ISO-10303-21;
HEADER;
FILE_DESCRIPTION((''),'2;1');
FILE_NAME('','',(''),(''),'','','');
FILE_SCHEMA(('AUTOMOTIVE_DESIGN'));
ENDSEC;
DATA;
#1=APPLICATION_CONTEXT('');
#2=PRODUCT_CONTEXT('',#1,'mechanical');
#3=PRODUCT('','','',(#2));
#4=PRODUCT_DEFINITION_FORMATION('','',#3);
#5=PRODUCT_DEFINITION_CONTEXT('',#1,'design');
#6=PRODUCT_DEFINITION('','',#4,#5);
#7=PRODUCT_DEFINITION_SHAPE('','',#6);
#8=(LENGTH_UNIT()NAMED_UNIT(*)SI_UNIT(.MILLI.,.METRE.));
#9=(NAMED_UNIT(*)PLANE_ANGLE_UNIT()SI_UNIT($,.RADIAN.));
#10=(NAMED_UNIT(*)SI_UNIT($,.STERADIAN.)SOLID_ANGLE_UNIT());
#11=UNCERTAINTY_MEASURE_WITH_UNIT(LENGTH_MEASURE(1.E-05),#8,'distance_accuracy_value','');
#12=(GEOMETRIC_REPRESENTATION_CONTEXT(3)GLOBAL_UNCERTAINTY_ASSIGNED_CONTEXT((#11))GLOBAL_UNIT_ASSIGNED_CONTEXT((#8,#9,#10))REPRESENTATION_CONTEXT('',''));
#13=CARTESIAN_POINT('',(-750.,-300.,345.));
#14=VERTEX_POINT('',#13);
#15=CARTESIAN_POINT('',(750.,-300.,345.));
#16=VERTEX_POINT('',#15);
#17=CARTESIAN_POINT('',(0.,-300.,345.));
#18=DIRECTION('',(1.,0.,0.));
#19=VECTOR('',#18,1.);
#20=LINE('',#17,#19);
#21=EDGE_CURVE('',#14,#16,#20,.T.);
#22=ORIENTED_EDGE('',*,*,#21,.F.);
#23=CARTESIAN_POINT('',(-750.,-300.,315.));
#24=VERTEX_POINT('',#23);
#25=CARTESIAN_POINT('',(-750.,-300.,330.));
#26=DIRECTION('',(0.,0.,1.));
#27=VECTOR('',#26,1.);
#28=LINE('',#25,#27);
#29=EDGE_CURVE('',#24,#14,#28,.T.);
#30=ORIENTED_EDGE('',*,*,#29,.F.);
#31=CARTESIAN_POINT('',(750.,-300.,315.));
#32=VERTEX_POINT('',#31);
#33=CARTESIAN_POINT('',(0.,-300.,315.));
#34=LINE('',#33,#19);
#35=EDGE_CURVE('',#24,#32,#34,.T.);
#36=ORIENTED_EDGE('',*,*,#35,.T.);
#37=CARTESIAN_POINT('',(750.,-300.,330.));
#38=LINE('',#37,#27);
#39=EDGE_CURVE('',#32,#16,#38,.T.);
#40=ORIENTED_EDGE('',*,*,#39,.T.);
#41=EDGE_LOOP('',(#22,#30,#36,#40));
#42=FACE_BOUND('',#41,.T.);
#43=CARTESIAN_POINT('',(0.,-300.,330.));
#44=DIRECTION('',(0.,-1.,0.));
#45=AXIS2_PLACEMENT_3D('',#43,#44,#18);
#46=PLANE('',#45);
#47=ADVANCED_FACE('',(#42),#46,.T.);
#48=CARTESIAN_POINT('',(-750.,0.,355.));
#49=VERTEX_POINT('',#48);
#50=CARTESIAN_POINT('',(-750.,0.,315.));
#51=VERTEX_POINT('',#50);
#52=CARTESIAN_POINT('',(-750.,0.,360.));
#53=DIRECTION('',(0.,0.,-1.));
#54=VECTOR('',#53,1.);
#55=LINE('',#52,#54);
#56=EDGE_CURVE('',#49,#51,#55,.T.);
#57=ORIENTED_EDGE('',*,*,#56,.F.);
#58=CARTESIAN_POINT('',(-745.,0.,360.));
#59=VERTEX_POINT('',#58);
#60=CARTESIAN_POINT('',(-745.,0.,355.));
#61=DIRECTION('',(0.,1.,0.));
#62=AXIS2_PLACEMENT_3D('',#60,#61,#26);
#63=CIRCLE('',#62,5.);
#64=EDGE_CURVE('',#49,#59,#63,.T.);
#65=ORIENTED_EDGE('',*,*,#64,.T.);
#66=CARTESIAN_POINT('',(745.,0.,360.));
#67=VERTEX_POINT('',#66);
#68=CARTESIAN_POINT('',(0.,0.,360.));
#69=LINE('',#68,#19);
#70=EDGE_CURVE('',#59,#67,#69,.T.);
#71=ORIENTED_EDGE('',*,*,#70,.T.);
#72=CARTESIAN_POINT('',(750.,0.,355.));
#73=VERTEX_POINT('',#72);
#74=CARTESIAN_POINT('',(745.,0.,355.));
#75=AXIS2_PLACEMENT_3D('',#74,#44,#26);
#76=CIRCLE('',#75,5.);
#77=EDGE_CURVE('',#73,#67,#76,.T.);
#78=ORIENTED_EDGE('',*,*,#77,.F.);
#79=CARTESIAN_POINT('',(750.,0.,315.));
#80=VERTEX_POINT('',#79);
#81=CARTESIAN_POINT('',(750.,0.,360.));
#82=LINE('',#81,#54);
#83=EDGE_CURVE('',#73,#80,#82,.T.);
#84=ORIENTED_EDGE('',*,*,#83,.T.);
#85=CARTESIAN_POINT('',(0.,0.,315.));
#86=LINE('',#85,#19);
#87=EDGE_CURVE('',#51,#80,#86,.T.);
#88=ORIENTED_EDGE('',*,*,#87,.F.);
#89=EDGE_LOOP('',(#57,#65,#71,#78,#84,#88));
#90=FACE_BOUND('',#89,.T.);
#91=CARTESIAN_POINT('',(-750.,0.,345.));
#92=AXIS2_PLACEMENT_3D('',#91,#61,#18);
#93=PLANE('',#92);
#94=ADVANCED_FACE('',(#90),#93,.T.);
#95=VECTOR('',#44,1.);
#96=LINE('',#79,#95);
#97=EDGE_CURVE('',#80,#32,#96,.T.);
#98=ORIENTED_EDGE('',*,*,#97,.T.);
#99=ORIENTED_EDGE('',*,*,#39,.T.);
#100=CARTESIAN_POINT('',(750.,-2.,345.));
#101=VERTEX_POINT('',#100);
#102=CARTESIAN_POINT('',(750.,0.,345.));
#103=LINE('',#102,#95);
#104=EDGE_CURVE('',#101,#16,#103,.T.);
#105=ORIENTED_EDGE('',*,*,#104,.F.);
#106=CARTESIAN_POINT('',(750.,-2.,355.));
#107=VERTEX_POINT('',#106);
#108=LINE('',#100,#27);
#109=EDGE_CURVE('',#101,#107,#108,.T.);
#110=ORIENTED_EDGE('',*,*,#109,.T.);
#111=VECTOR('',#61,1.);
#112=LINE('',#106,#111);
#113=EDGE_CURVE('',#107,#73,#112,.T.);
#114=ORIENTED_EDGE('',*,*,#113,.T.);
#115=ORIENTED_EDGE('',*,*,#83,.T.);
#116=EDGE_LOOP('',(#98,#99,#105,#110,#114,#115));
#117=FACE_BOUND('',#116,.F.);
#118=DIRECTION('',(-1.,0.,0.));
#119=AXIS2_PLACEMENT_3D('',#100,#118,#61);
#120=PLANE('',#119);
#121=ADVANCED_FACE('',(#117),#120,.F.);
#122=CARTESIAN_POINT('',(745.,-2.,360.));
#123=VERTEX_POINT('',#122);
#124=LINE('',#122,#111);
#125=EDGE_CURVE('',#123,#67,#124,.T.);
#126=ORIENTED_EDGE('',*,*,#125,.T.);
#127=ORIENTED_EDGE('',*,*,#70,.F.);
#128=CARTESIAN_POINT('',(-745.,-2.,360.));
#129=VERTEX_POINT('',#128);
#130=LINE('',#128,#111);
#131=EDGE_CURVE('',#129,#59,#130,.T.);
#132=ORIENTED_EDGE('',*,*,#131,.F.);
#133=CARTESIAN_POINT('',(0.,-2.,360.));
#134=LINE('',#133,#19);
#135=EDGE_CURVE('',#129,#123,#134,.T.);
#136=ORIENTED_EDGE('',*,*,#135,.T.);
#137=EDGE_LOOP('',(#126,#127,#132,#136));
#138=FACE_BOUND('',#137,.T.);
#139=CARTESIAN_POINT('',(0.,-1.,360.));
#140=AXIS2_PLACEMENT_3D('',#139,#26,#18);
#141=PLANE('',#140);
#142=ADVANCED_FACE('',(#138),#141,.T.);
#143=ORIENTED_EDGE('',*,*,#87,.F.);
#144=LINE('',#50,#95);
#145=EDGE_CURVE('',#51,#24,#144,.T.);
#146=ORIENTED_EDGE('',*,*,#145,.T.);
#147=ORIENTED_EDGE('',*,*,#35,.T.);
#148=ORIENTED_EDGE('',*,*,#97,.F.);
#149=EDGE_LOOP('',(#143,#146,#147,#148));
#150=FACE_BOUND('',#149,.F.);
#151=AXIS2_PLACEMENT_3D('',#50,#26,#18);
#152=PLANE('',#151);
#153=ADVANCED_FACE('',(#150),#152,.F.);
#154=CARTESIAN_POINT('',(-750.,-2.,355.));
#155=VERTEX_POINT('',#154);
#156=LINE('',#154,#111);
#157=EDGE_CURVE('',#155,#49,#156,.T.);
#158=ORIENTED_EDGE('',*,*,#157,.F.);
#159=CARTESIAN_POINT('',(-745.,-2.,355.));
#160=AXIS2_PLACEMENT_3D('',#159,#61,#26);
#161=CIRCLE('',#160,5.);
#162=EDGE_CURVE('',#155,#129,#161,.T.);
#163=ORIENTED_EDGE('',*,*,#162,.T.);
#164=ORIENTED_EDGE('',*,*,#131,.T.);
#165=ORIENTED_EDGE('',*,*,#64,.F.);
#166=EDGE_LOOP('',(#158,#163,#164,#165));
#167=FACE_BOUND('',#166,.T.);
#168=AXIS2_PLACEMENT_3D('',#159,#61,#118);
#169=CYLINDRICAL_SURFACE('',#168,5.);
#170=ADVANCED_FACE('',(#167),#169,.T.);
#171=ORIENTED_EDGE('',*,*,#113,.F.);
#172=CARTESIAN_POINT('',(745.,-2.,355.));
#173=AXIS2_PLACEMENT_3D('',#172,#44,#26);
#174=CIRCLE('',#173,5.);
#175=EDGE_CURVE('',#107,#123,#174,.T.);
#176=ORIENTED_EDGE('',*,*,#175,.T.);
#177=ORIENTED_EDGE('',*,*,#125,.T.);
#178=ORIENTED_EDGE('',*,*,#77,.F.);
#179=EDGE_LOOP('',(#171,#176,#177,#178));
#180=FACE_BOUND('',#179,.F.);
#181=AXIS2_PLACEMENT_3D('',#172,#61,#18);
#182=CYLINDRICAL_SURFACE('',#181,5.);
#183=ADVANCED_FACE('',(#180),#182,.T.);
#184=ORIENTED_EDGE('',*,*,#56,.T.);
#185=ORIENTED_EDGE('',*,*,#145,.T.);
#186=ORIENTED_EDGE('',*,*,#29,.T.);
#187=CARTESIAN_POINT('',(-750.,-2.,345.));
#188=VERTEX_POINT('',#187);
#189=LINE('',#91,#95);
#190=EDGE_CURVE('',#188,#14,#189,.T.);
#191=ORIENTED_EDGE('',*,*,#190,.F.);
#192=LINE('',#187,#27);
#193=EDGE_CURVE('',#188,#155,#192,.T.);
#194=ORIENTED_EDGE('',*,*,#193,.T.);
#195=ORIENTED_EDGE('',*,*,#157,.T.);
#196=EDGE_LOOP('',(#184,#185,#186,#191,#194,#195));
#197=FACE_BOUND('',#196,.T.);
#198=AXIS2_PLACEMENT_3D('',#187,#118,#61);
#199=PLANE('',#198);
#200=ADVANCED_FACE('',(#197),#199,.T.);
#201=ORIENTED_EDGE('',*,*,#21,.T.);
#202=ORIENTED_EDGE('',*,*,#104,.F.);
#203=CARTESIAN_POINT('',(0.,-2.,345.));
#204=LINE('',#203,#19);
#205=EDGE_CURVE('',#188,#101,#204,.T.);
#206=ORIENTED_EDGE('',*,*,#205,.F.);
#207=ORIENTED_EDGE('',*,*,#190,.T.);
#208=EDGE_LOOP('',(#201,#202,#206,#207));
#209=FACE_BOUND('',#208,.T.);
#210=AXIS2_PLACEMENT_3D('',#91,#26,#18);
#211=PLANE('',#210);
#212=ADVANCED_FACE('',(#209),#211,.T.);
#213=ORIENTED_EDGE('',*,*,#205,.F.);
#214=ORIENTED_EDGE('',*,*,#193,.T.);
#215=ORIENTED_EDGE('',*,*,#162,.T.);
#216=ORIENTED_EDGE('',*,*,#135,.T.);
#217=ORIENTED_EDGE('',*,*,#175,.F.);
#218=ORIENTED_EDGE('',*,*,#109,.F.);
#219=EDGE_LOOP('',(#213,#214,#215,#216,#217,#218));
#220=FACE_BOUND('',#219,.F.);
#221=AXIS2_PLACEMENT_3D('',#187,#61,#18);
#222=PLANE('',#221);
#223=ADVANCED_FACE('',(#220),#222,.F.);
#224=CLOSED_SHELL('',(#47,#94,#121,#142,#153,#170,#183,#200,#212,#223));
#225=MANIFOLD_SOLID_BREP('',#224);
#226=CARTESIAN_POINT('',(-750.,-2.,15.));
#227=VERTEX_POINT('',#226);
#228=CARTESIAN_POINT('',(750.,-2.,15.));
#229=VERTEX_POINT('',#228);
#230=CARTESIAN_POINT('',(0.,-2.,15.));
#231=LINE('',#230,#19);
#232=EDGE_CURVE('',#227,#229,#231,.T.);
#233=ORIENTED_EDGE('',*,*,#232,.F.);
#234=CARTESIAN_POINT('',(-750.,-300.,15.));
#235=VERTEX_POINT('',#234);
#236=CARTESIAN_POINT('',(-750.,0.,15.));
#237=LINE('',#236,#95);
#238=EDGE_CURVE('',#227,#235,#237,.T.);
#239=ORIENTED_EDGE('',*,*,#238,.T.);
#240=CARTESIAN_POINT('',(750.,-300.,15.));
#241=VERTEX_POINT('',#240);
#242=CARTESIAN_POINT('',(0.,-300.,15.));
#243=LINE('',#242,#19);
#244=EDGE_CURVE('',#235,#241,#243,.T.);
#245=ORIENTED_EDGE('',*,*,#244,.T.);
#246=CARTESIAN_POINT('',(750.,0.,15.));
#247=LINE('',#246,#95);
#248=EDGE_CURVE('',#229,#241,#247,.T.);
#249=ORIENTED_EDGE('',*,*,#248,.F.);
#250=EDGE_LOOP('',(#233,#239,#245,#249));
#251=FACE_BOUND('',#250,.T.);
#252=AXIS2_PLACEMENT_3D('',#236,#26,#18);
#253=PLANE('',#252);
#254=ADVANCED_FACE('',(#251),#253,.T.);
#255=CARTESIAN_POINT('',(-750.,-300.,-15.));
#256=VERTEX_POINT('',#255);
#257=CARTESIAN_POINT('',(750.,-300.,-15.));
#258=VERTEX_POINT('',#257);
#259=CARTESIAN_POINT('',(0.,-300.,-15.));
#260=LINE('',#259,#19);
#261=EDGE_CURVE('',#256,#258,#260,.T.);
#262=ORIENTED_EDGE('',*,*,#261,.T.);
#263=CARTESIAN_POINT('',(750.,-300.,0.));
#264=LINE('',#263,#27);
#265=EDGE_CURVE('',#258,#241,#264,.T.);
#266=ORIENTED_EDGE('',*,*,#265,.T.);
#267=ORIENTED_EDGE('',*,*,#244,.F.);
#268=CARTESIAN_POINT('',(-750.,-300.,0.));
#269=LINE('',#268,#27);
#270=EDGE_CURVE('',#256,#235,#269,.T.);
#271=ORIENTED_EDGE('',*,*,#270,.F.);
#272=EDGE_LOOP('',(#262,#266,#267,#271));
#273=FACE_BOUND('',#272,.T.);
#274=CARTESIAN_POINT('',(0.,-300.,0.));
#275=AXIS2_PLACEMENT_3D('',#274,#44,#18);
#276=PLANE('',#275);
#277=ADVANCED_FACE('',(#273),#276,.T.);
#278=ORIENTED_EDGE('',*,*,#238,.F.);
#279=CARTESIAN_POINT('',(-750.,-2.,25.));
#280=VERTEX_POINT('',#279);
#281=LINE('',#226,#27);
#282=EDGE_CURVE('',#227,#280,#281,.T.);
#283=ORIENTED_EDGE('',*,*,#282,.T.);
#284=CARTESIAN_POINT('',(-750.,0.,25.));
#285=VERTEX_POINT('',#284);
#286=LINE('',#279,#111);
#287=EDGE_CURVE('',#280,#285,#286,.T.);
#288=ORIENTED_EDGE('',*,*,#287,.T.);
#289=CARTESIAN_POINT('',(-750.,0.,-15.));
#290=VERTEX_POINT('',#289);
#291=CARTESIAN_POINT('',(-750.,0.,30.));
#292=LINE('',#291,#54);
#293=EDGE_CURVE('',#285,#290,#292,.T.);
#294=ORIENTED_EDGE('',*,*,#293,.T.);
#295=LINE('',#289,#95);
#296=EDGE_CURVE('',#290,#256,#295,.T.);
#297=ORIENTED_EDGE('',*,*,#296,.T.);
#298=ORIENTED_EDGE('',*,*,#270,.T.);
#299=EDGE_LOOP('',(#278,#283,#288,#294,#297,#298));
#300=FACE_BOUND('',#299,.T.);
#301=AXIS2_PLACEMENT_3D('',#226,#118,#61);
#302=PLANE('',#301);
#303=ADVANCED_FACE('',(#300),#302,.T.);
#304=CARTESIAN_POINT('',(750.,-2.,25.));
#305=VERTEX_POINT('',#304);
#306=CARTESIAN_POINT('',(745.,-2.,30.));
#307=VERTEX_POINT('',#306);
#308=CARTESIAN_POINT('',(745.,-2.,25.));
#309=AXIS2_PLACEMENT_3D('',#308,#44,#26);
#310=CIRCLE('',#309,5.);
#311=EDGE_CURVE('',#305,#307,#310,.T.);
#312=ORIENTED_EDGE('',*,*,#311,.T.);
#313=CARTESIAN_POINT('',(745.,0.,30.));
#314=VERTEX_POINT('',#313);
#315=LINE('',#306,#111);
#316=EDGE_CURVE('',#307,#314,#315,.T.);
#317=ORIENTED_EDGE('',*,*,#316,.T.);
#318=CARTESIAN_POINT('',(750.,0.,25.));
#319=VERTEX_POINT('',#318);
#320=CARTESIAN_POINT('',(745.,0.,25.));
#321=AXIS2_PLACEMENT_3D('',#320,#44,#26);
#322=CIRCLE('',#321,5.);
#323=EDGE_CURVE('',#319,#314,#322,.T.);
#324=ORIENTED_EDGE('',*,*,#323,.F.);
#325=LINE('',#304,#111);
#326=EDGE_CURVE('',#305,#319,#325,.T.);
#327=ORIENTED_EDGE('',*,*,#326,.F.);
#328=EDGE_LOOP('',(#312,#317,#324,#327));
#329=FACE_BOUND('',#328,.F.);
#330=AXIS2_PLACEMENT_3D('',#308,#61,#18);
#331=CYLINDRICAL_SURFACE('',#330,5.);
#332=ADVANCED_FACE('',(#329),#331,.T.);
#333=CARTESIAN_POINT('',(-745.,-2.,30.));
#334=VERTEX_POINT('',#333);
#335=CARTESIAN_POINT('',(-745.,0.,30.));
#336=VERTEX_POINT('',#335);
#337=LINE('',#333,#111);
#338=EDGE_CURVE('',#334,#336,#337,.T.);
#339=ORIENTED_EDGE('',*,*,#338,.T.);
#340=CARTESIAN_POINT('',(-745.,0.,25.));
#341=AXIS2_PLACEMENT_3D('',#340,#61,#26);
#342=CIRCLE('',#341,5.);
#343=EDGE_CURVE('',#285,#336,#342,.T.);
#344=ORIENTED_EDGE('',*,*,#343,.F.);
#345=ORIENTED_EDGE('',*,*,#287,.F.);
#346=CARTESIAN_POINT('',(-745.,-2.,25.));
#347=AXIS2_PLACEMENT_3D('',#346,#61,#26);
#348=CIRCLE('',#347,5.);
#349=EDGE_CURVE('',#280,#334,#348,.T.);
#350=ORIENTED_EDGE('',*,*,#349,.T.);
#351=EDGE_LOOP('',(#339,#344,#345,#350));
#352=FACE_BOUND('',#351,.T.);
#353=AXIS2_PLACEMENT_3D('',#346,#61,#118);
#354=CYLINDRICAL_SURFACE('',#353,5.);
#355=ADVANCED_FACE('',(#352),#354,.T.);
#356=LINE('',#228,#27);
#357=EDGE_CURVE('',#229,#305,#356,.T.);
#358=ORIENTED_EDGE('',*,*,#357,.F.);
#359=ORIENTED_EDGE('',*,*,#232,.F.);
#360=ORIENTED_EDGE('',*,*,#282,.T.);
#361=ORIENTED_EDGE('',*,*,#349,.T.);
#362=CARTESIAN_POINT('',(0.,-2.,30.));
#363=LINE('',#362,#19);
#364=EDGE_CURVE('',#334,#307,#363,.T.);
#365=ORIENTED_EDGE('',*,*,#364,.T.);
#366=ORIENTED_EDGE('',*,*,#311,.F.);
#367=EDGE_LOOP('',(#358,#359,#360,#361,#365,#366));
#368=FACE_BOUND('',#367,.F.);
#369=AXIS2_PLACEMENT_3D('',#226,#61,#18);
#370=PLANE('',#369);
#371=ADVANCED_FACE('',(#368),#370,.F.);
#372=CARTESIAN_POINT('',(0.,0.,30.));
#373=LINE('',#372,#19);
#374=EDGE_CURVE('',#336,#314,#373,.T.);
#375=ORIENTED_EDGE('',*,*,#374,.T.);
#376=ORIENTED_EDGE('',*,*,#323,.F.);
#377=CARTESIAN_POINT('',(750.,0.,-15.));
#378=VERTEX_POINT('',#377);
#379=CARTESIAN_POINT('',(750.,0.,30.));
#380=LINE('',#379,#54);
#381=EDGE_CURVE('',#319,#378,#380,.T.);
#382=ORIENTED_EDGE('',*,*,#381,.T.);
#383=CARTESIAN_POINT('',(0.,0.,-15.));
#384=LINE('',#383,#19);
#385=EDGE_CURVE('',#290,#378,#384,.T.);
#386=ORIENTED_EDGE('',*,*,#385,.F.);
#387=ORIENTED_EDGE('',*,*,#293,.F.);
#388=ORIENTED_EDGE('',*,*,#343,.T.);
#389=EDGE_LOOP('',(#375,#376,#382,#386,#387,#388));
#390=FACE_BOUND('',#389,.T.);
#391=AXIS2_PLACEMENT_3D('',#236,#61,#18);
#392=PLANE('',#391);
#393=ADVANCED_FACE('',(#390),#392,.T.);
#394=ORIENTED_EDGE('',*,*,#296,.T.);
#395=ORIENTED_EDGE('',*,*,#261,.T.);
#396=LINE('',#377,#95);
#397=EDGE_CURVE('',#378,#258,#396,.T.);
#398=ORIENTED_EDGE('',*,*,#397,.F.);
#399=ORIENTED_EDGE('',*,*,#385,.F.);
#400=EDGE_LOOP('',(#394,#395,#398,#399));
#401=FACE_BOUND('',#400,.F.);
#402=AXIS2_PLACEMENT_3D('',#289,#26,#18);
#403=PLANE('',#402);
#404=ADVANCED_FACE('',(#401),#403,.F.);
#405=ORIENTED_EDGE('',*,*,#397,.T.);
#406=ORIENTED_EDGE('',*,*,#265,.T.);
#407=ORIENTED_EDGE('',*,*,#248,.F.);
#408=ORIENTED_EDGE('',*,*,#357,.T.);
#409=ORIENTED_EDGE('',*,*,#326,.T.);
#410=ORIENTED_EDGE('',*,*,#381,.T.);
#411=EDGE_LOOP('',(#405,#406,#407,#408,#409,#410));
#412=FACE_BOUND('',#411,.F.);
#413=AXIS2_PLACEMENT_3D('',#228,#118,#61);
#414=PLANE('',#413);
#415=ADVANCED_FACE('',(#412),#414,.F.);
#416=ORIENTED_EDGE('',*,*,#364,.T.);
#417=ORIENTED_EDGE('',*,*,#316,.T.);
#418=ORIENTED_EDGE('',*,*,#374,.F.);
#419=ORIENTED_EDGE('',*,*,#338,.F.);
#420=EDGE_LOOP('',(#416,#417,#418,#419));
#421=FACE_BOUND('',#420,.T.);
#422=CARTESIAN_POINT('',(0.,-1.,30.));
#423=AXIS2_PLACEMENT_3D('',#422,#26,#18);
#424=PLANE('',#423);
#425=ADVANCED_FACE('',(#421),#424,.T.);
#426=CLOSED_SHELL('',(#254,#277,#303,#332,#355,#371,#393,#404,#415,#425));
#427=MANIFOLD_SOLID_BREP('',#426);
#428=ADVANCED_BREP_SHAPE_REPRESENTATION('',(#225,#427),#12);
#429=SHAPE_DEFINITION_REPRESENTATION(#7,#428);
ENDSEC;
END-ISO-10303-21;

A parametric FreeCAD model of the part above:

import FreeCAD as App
import Part
import Sketcher
from FreeCAD import Vector
Q = App.Units.Quantity


def edges_at(feature, points):
    """Names of the edges that pass closest to the given points."""
    edges = feature.Shape.Edges
    near = lambda p: min(range(len(edges)), key=lambda i: edges[i].distToShape(Part.Vertex(*p))[0])
    return sorted({f"Edge{near(p) + 1}" for p in points})


def add_polygon(sketch, points):
    """Adds a closed chain of lines whose ends are joined by coincident constraints."""
    first, n = sketch.GeometryCount, len(points)
    for a, b in zip(points, points[1:] + points[:1]):
        sketch.addGeometry(Part.LineSegment(App.Vector(*a, 0), App.Vector(*b, 0)), False)
    for i in range(n):
        sketch.addConstraint(Sketcher.Constraint("Coincident", first + i, 2, first + (i + 1) % n, 1))

doc = App.newDocument("Part")
body = doc.addObject("PartDesign::Body", "Body")
body.AllowCompound = True

sketch1 = body.newObject("Sketcher::SketchObject", "Sketch")
sketch1.AttachmentSupport = (doc.getObject("XZ_Plane"), [""])
sketch1.MapMode = "FlatFace"
add_polygon(sketch1, [(-750, 15), (-750, -15), (750, -15), (750, 15)])
add_polygon(sketch1, [(-750, 345), (-750, 315), (750, 315), (750, 345)])
sketch1.addConstraint(Sketcher.Constraint("Vertical", 0))
sketch1.addConstraint(Sketcher.Constraint("Horizontal", 1))
sketch1.addConstraint(Sketcher.Constraint("Vertical", 2))
sketch1.addConstraint(Sketcher.Constraint("Horizontal", 3))
sketch1.addConstraint(Sketcher.Constraint("Vertical", 4))
sketch1.addConstraint(Sketcher.Constraint("Horizontal", 5))
sketch1.addConstraint(Sketcher.Constraint("Vertical", 6))
sketch1.addConstraint(Sketcher.Constraint("Horizontal", 7))
sketch1.addConstraint(Sketcher.Constraint("Symmetric", 0, 2, 2, 2, -1, 1))
sketch1.addConstraint(Sketcher.Constraint("Vertical", 3, 2, 4, 2))
sketch1.addConstraint(Sketcher.Constraint("Vertical", 2, 2, 5, 2))
sketch1.addConstraint(Sketcher.Constraint("Equal", 2, 4))
sketch1.addConstraint(Sketcher.Constraint("DistanceX", 1, 1, 1, 2, Q("1500 mm")))
sketch1.addConstraint(Sketcher.Constraint("DistanceY", 0, 2, 0, 1, Q("30 mm")))
sketch1.addConstraint(Sketcher.Constraint("DistanceY", -1, 1, 4, 2, Q("315 mm")))
pad1 = body.newObject("PartDesign::Pad", "Pad")
pad1.Profile = sketch1
pad1.Length = 300

sketch2 = body.newObject("Sketcher::SketchObject", "Sketch001")
sketch2.AttachmentSupport = (doc.getObject("XY_Plane"), [""])
sketch2.MapMode = "FlatFace"
sketch2.AttachmentOffset = App.Placement(Vector(0, 0, 345), App.Rotation())
add_polygon(sketch2, [(-750, 0), (-750, -2), (750, -2), (750, 0)])
sketch2.addConstraint(Sketcher.Constraint("Vertical", 0))
sketch2.addConstraint(Sketcher.Constraint("Horizontal", 1))
sketch2.addConstraint(Sketcher.Constraint("Vertical", 2))
sketch2.addConstraint(Sketcher.Constraint("Horizontal", 3))
sketch2.addConstraint(Sketcher.Constraint("Symmetric", 2, 2, 3, 2, -1, 1))
sketch2.addConstraint(Sketcher.Constraint("DistanceX", 1, 1, 1, 2, Q("1500 mm")))
sketch2.addConstraint(Sketcher.Constraint("DistanceY", 0, 2, 0, 1, Q("2 mm")))
pad2 = body.newObject("PartDesign::Pad", "Pad001")
pad2.Profile = sketch2
pad2.Length = 15

sketch3 = body.newObject("Sketcher::SketchObject", "Sketch002")
sketch3.AttachmentSupport = (doc.getObject("XY_Plane"), [""])
sketch3.MapMode = "FlatFace"
sketch3.AttachmentOffset = App.Placement(Vector(0, 0, 15), App.Rotation())
add_polygon(sketch3, [(-750, 0), (-750, -2), (750, -2), (750, 0)])
sketch3.addConstraint(Sketcher.Constraint("Vertical", 0))
sketch3.addConstraint(Sketcher.Constraint("Horizontal", 1))
sketch3.addConstraint(Sketcher.Constraint("Vertical", 2))
sketch3.addConstraint(Sketcher.Constraint("Horizontal", 3))
sketch3.addConstraint(Sketcher.Constraint("Symmetric", 2, 2, 3, 2, -1, 1))
sketch3.addConstraint(Sketcher.Constraint("DistanceX", 1, 1, 1, 2, Q("1500 mm")))
sketch3.addConstraint(Sketcher.Constraint("DistanceY", 0, 2, 0, 1, Q("2 mm")))
pad3 = body.newObject("PartDesign::Pad", "Pad002")
pad3.Profile = sketch3
pad3.Length = 15
doc.recompute()

fillet = body.newObject("PartDesign::Fillet", "Fillet")
fillet.Base = (pad3, edges_at(pad3, [
    (-750, -1, 360),
    (-750, -1, 30),
    (750, -1, 360),
    (750, -1, 30),
]))
fillet.Radius = 5

doc.recompute()
